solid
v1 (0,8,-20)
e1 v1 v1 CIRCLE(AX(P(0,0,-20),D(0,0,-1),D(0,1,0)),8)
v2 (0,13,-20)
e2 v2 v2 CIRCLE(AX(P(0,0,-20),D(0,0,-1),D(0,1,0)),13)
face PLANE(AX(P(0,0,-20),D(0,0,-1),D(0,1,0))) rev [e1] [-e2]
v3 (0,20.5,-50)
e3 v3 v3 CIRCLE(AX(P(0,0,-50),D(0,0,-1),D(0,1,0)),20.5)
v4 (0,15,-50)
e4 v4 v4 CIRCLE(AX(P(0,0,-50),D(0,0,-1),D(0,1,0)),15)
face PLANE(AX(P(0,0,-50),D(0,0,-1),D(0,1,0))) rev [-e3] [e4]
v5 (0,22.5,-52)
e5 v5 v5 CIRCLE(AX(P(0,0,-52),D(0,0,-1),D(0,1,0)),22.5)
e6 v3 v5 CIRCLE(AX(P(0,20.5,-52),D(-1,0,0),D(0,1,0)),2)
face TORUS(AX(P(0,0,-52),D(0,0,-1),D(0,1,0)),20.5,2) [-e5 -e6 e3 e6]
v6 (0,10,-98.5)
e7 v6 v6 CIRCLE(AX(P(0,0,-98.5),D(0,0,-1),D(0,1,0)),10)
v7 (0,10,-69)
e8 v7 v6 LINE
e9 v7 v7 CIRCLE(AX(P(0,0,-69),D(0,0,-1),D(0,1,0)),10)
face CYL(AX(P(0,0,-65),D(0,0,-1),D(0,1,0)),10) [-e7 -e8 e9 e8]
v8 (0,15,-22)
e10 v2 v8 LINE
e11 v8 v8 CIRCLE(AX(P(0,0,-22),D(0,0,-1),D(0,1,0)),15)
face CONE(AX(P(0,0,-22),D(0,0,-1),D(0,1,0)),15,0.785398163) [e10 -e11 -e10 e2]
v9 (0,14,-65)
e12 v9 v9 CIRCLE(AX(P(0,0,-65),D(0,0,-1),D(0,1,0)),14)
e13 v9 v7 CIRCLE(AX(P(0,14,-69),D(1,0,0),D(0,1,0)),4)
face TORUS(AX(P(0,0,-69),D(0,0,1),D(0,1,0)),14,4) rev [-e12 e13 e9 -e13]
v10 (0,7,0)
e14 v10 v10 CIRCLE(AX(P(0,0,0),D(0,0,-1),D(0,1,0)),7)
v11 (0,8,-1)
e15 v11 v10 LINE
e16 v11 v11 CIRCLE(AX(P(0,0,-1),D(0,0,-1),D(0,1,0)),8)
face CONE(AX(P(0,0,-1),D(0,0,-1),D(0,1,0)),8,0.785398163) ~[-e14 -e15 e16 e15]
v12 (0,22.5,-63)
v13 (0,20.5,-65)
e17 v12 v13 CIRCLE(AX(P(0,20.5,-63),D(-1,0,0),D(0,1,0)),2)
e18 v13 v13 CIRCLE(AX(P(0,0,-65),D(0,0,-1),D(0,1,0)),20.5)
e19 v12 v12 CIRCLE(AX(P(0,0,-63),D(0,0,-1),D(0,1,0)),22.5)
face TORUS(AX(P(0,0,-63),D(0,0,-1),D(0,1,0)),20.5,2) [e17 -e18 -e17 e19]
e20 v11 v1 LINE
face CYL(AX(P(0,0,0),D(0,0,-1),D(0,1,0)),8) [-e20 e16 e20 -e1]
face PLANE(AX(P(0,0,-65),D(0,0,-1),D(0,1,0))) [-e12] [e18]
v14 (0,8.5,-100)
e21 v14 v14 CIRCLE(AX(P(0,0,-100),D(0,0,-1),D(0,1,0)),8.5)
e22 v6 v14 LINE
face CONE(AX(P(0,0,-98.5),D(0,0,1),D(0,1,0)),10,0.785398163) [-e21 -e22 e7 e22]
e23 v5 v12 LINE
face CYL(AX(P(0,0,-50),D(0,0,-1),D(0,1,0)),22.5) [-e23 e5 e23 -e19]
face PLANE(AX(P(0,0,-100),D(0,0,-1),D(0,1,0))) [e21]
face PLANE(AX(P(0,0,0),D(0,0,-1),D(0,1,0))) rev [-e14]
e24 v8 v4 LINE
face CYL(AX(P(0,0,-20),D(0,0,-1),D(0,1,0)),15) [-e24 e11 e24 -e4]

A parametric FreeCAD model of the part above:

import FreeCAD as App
import Part
import Sketcher
from FreeCAD import Vector


def edges_at(feature, points):
    """Names of the edges that pass closest to the given points."""
    edges = feature.Shape.Edges
    near = lambda p: min(range(len(edges)), key=lambda i: edges[i].distToShape(Part.Vertex(*p))[0])
    return sorted({f"Edge{near(p) + 1}" for p in points})

doc = App.newDocument("Part")
params = doc.addObject("Spreadsheet::Sheet", "Params")
for row, (alias, value) in enumerate([
    ("sketch1_width", "8 mm"),
    ("sketch1_width2", "7 mm"),
    ("sketch1_height", "100 mm"),
    ("sketch1_height2", "15 mm"),
    ("sketch1_height3", "30 mm"),
    ("revolution_angle", "360 deg"),
    ("chamfer_size", "2 mm"),
    ("chamfer2_size", "1 mm"),
    ("fillet_radius", "2 mm"),
    ("fillet2_radius", "2 mm"),
    ("fillet3_radius", "4 mm"),
    ("chamfer3_size", "1.5 mm"),
], start=1):
    params.set(f"A{row}", alias)
    params.set(f"B{row}", "=" + value)
    params.setAlias(f"B{row}", alias)

body = doc.addObject("PartDesign::Body", "Body")

sketch1 = body.newObject("Sketcher::SketchObject", "Sketch")
sketch1.AttachmentSupport = (doc.getObject("YZ_Plane"), [""])
sketch1.MapMode = "FlatFace"
sketch1.addGeometry(Part.LineSegment(Vector(8, 0, 0), Vector(0, 0, 0)), False)
sketch1.addGeometry(Part.LineSegment(Vector(0, 0, 0), Vector(0, -100, 0)), False)
sketch1.addGeometry(Part.LineSegment(Vector(0, -100, 0), Vector(10, -100, 0)), False)
sketch1.addGeometry(Part.LineSegment(Vector(10, -100, 0), Vector(10, -65, 0)), False)
sketch1.addGeometry(Part.LineSegment(Vector(10, -65, 0), Vector(22, -65, 0)), False)
sketch1.addGeometry(Part.LineSegment(Vector(22, -65, 0), Vector(22, -50, 0)), False)
sketch1.addGeometry(Part.LineSegment(Vector(22, -50, 0), Vector(15, -50, 0)), False)
sketch1.addGeometry(Part.LineSegment(Vector(15, -50, 0), Vector(15, -20, 0)), False)
sketch1.addGeometry(Part.LineSegment(Vector(15, -20, 0), Vector(8, -20, 0)), False)
sketch1.addGeometry(Part.LineSegment(Vector(8, -20, 0), Vector(8, 0, 0)), False)
sketch1.addConstraint(Sketcher.Constraint("Coincident", 0, 2, 1, 1))
sketch1.addConstraint(Sketcher.Constraint("Coincident", 1, 2, 2, 1))
sketch1.addConstraint(Sketcher.Constraint("Coincident", 2, 2, 3, 1))
sketch1.addConstraint(Sketcher.Constraint("Coincident", 3, 2, 4, 1))
sketch1.addConstraint(Sketcher.Constraint("Coincident", 4, 2, 5, 1))
sketch1.addConstraint(Sketcher.Constraint("Coincident", 5, 2, 6, 1))
sketch1.addConstraint(Sketcher.Constraint("Coincident", 6, 2, 7, 1))
sketch1.addConstraint(Sketcher.Constraint("Coincident", 7, 2, 8, 1))
sketch1.addConstraint(Sketcher.Constraint("Coincident", 8, 2, 9, 1))
sketch1.addConstraint(Sketcher.Constraint("Coincident", 9, 2, 0, 1))
sketch1.addConstraint(Sketcher.Constraint("Horizontal", 0))
sketch1.addConstraint(Sketcher.Constraint("Vertical", 1))
sketch1.addConstraint(Sketcher.Constraint("Horizontal", 2))
sketch1.addConstraint(Sketcher.Constraint("Vertical", 3))
sketch1.addConstraint(Sketcher.Constraint("Horizontal", 4))
sketch1.addConstraint(Sketcher.Constraint("Vertical", 5))
sketch1.addConstraint(Sketcher.Constraint("Horizontal", 6))
sketch1.addConstraint(Sketcher.Constraint("Vertical", 7))
sketch1.addConstraint(Sketcher.Constraint("Horizontal", 8))
sketch1.addConstraint(Sketcher.Constraint("Vertical", 9))
sketch1.addConstraint(Sketcher.Constraint("Coincident", 0, 2, -1, 1))
sketch1.addConstraint(Sketcher.Constraint("DistanceX", 0, 2, 0, 1, 8.0))
sketch1.addConstraint(Sketcher.Constraint("DistanceX", 8, 2, 8, 1, 7.0))
sketch1.addConstraint(Sketcher.Constraint("DistanceY", 1, 2, 1, 1, 100.0))
sketch1.addConstraint(Sketcher.Constraint("DistanceY", 5, 1, 5, 2, 15.0))
sketch1.addConstraint(Sketcher.Constraint("DistanceY", 7, 1, 7, 2, 30.0))
sketch1.addConstraint(Sketcher.Constraint("DistanceY", 9, 1, 9, 2, 20.0))
sketch1.addConstraint(Sketcher.Constraint("DistanceX", 4, 1, 4, 2, 12.5))
sketch1.addConstraint(Sketcher.Constraint("DistanceX", 6, 2, 6, 1, 7.5))
sketch1.setExpression("Constraints[21]", "Params.sketch1_width")
sketch1.setExpression("Constraints[22]", "Params.sketch1_width2")
sketch1.setExpression("Constraints[23]", "Params.sketch1_height")
sketch1.setExpression("Constraints[24]", "Params.sketch1_height2")
sketch1.setExpression("Constraints[25]", "Params.sketch1_height3")
revolution = body.newObject("PartDesign::Revolution", "Revolution")
revolution.Profile = sketch1
revolution.ReferenceAxis = (sketch1, ["V_Axis"])
revolution.setExpression("Angle", "Params.revolution_angle")
doc.recompute()

chamfer = body.newObject("PartDesign::Chamfer", "Chamfer")
chamfer.Base = (revolution, edges_at(revolution, [(0, -15, -20)]))
chamfer.setExpression("Size", "Params.chamfer_size")
doc.recompute()

chamfer2 = body.newObject("PartDesign::Chamfer", "Chamfer001")
chamfer2.Base = (chamfer, edges_at(chamfer, [(0, -8, 0)]))
chamfer2.setExpression("Size", "Params.chamfer2_size")
doc.recompute()

fillet = body.newObject("PartDesign::Fillet", "Fillet")
fillet.Base = (chamfer2, edges_at(chamfer2, [(0, -22.5, -50)]))
fillet.setExpression("Radius", "Params.fillet_radius")
doc.recompute()

fillet2 = body.newObject("PartDesign::Fillet", "Fillet001")
fillet2.Base = (fillet, edges_at(fillet, [(0, -22.5, -65)]))
fillet2.setExpression("Radius", "Params.fillet2_radius")
doc.recompute()

fillet3 = body.newObject("PartDesign::Fillet", "Fillet002")
fillet3.Base = (fillet2, edges_at(fillet2, [(0, -10, -65)]))
fillet3.setExpression("Radius", "Params.fillet3_radius")
doc.recompute()

chamfer3 = body.newObject("PartDesign::Chamfer", "Chamfer002")
chamfer3.Base = (fillet3, edges_at(fillet3, [(0, -10, -100)]))
chamfer3.setExpression("Size", "Params.chamfer3_size")

doc.recompute()
